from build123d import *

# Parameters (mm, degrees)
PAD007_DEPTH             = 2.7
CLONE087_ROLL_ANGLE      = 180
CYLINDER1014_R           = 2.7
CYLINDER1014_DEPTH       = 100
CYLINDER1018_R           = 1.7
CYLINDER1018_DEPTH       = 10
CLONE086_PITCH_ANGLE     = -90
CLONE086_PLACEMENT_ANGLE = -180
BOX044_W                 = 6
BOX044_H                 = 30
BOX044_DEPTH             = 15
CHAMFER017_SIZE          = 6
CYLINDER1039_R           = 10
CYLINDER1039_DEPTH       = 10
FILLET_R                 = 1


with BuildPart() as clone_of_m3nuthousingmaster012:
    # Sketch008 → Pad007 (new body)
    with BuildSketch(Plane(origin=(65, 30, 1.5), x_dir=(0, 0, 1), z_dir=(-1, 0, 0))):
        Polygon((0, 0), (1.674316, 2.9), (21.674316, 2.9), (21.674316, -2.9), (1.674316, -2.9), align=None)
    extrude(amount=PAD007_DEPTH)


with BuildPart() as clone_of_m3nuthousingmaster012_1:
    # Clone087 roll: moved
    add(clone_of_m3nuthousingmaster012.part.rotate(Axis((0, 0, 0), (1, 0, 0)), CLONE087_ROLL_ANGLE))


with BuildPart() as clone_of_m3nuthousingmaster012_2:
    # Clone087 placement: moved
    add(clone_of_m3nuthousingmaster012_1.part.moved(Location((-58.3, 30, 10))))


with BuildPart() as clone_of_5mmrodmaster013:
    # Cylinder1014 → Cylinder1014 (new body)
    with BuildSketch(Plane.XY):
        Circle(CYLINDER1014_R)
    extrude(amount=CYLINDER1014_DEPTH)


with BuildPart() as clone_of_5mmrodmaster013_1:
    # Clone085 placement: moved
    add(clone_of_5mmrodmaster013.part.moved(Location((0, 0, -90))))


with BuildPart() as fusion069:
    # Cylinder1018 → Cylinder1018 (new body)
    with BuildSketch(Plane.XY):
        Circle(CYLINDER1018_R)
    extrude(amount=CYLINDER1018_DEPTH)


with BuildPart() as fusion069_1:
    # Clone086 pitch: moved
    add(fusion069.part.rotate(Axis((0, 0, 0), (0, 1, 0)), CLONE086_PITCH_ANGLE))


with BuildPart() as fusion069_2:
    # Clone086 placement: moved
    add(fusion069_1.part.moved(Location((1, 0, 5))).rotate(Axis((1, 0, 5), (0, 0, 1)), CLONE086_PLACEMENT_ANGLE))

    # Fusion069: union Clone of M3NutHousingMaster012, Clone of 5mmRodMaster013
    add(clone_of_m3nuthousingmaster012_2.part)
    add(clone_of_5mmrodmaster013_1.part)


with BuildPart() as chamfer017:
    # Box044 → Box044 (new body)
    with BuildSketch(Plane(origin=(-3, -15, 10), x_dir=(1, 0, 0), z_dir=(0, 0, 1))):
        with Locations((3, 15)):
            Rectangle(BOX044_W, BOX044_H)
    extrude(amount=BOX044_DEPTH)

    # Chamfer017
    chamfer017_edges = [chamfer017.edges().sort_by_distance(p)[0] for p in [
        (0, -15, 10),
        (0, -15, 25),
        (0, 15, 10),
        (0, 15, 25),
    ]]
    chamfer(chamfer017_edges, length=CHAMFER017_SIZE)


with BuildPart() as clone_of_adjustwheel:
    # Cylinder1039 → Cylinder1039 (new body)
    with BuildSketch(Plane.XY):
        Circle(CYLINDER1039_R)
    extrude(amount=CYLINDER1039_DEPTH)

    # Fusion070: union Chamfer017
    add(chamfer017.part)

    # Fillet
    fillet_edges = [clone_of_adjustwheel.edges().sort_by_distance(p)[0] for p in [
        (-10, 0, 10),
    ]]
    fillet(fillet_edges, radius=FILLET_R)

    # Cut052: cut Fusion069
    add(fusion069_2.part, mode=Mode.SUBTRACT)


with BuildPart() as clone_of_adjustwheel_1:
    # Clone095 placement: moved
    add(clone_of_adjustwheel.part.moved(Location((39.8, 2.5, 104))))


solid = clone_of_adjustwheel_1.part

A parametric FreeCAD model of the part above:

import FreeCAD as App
import Part
import Sketcher
Q = App.Units.Quantity


def edges_at(feature, points):
    """Names of the edges that pass closest to the given points."""
    edges = feature.Shape.Edges
    near = lambda p: min(range(len(edges)), key=lambda i: edges[i].distToShape(Part.Vertex(*p))[0])
    return sorted({f"Edge{near(p) + 1}" for p in points})

doc = App.newDocument("Part")
body = doc.addObject("PartDesign::Body", "Body")

# Sketch on YZ plane
sketch1 = body.newObject("Sketcher::SketchObject", "Sketch")
sketch1.AttachmentSupport = (doc.getObject("YZ_Plane"), [""])
sketch1.MapMode = "FlatFace"
sketch1.AttachmentOffset = App.Placement(App.Vector(0, 0, 65), App.Rotation())
sketch1.addGeometry(Part.LineSegment(App.Vector(32.9, 3.174316, 0), App.Vector(30, 1.5, 0)), False)
sketch1.addGeometry(Part.LineSegment(App.Vector(30, 1.5, 0), App.Vector(27.1, 3.174316, 0)), False)
sketch1.addGeometry(Part.LineSegment(App.Vector(27.1, 3.174316, 0), App.Vector(27.1, 23.174316, 0)), False)
sketch1.addGeometry(Part.LineSegment(App.Vector(27.1, 23.174316, 0), App.Vector(32.9, 23.174316, 0)), False)
sketch1.addGeometry(Part.LineSegment(App.Vector(32.9, 23.174316, 0), App.Vector(32.9, 3.174316, 0)), False)
sketch1.addConstraint(Sketcher.Constraint("Coincident", 0, 2, 1, 1))
sketch1.addConstraint(Sketcher.Constraint("Coincident", 1, 2, 2, 1))
sketch1.addConstraint(Sketcher.Constraint("Coincident", 2, 2, 3, 1))
sketch1.addConstraint(Sketcher.Constraint("Coincident", 3, 2, 4, 1))
sketch1.addConstraint(Sketcher.Constraint("Coincident", 4, 2, 0, 1))
sketch1.addConstraint(Sketcher.Constraint("Vertical", 2))
sketch1.addConstraint(Sketcher.Constraint("Horizontal", 3))
sketch1.addConstraint(Sketcher.Constraint("Vertical", 4))
sketch1.addConstraint(Sketcher.Constraint("Horizontal", 1, 2, 4, 2))
sketch1.addConstraint(Sketcher.Constraint("Equal", 0, 1))
sketch1.addConstraint(Sketcher.Constraint("DistanceY", 2, 1, 2, 2, Q("20 mm")))
sketch1.addConstraint(Sketcher.Constraint("Angle", 0, Q("-149.999997 deg")))
sketch1.addConstraint(Sketcher.Constraint("DistanceX", 3, 1, 3, 2, Q("5.8 mm")))
sketch1.addConstraint(Sketcher.Constraint("DistanceX", -1, 1, 0, 2, Q("30 mm")))
sketch1.addConstraint(Sketcher.Constraint("DistanceY", -1, 1, 0, 2, Q("1.5 mm")))
pad1 = body.newObject("PartDesign::Pad", "Pad")
pad1.Profile = sketch1
pad1.Length = 2.7
pad1.Reversed = True
body2 = doc.addObject("PartDesign::Body", "Body001")
doc.recompute()

body.Placement = App.Placement(App.Vector(0, 0, 0), App.Rotation(App.Vector(1, 0, 0), 180))
boolean = body2.newObject("PartDesign::Boolean", "Boolean")
boolean.Type = "Fuse"
boolean.addObjects([body])
body3 = doc.addObject("PartDesign::Body", "Body002")
doc.recompute()

body2.Placement = App.Placement(App.Vector(-58.3, 30, 10), App.Rotation(App.Vector(0, 0, 1), 0))
boolean2 = body3.newObject("PartDesign::Boolean", "Boolean001")
boolean2.Type = "Fuse"
boolean2.addObjects([body2])
body4 = doc.addObject("PartDesign::Body", "Body003")

# Sketch on XY plane
sketch2 = body4.newObject("Sketcher::SketchObject", "Sketch001")
sketch2.AttachmentSupport = (doc.getObject("XY_Plane003"), [""])
sketch2.MapMode = "FlatFace"
sketch2.addGeometry(Part.Circle(App.Vector(0, 0, 0), App.Vector(0, 0, 1), 2.7), False)
sketch2.addConstraint(Sketcher.Constraint("Coincident", 0, 3, -1, 1))
sketch2.addConstraint(Sketcher.Constraint("Diameter", 0, Q("5.4 mm")))
pad2 = body4.newObject("PartDesign::Pad", "Pad001")
pad2.Profile = sketch2
pad2.Length = 100
body5 = doc.addObject("PartDesign::Body", "Body004")
doc.recompute()

body4.Placement = App.Placement(App.Vector(0, 0, -90), App.Rotation(App.Vector(0, 0, 1), 0))
boolean3 = body5.newObject("PartDesign::Boolean", "Boolean002")
boolean3.Type = "Fuse"
boolean3.addObjects([body4])
body6 = doc.addObject("PartDesign::Body", "Body005")

# Sketch on XY plane
sketch3 = body6.newObject("Sketcher::SketchObject", "Sketch002")
sketch3.AttachmentSupport = (doc.getObject("XY_Plane005"), [""])
sketch3.MapMode = "FlatFace"
sketch3.addGeometry(Part.Circle(App.Vector(0, 0, 0), App.Vector(0, 0, 1), 1.7), False)
sketch3.addConstraint(Sketcher.Constraint("Coincident", 0, 3, -1, 1))
sketch3.addConstraint(Sketcher.Constraint("Diameter", 0, Q("3.4 mm")))
pad3 = body6.newObject("PartDesign::Pad", "Pad002")
pad3.Profile = sketch3
pad3.Length = 10
body7 = doc.addObject("PartDesign::Body", "Body006")
doc.recompute()

body6.Placement = App.Placement(App.Vector(0, 0, 0), App.Rotation(App.Vector(0, 1, 0), 270))
boolean4 = body7.newObject("PartDesign::Boolean", "Boolean003")
boolean4.Type = "Fuse"
boolean4.addObjects([body6])
body8 = doc.addObject("PartDesign::Body", "Body007")
doc.recompute()

body7.Placement = App.Placement(App.Vector(1, 0, 5), App.Rotation(App.Vector(0, 0, 1), 180))
boolean5 = body8.newObject("PartDesign::Boolean", "Boolean004")
boolean5.Type = "Fuse"
boolean5.addObjects([body7])
doc.recompute()

boolean6 = body8.newObject("PartDesign::Boolean", "Boolean005")
boolean6.Type = "Fuse"
boolean6.addObjects([body3])
doc.recompute()

boolean7 = body8.newObject("PartDesign::Boolean", "Boolean006")
boolean7.Type = "Fuse"
boolean7.addObjects([body5])
body9 = doc.addObject("PartDesign::Body", "Body008")

# Sketch on XY plane
sketch4 = body9.newObject("Sketcher::SketchObject", "Sketch003")
sketch4.AttachmentSupport = (doc.getObject("XY_Plane008"), [""])
sketch4.MapMode = "FlatFace"
sketch4.AttachmentOffset = App.Placement(App.Vector(0, 0, 10), App.Rotation())
sketch4.addGeometry(Part.LineSegment(App.Vector(-3, 15, 0), App.Vector(-3, -15, 0)), False)
sketch4.addGeometry(Part.LineSegment(App.Vector(-3, -15, 0), App.Vector(3, -15, 0)), False)
sketch4.addGeometry(Part.LineSegment(App.Vector(3, -15, 0), App.Vector(3, 15, 0)), False)
sketch4.addGeometry(Part.LineSegment(App.Vector(3, 15, 0), App.Vector(-3, 15, 0)), False)
sketch4.addConstraint(Sketcher.Constraint("Coincident", 0, 2, 1, 1))
sketch4.addConstraint(Sketcher.Constraint("Coincident", 1, 2, 2, 1))
sketch4.addConstraint(Sketcher.Constraint("Coincident", 2, 2, 3, 1))
sketch4.addConstraint(Sketcher.Constraint("Coincident", 3, 2, 0, 1))
sketch4.addConstraint(Sketcher.Constraint("Vertical", 0))
sketch4.addConstraint(Sketcher.Constraint("Horizontal", 1))
sketch4.addConstraint(Sketcher.Constraint("Vertical", 2))
sketch4.addConstraint(Sketcher.Constraint("Horizontal", 3))
sketch4.addConstraint(Sketcher.Constraint("Symmetric", 0, 2, 2, 2, -1, 1))
sketch4.addConstraint(Sketcher.Constraint("DistanceX", 1, 1, 1, 2, Q("6 mm")))
sketch4.addConstraint(Sketcher.Constraint("DistanceY", 0, 2, 0, 1, Q("30 mm")))
pad4 = body9.newObject("PartDesign::Pad", "Pad003")
pad4.Profile = sketch4
pad4.Length = 15
doc.recompute()

chamfer = body9.newObject("PartDesign::Chamfer", "Chamfer")
chamfer.Base = (pad4, edges_at(pad4, [
    (0, -15, 10),
    (0, -15, 25),
    (0, 15, 10),
    (0, 15, 25),
]))
chamfer.Size = 6
body10 = doc.addObject("PartDesign::Body", "Body009")

# Sketch on XY plane
sketch5 = body10.newObject("Sketcher::SketchObject", "Sketch004")
sketch5.AttachmentSupport = (doc.getObject("XY_Plane009"), [""])
sketch5.MapMode = "FlatFace"
sketch5.addGeometry(Part.Circle(App.Vector(0, 0, 0), App.Vector(0, 0, 1), 10), False)
sketch5.addConstraint(Sketcher.Constraint("Coincident", 0, 3, -1, 1))
sketch5.addConstraint(Sketcher.Constraint("Diameter", 0, Q("20 mm")))
pad5 = body10.newObject("PartDesign::Pad", "Pad004")
pad5.Profile = sketch5
pad5.Length = 10
doc.recompute()

boolean8 = body10.newObject("PartDesign::Boolean", "Boolean007")
boolean8.Type = "Fuse"
boolean8.addObjects([body9])
doc.recompute()

fillet = body10.newObject("PartDesign::Fillet", "Fillet")
fillet.Base = (boolean8, edges_at(boolean8, [(-10, 0, 10)]))
fillet.Radius = 1
doc.recompute()

boolean9 = body10.newObject("PartDesign::Boolean", "Boolean008")
boolean9.Type = "Cut"
boolean9.addObjects([body8])
body11 = doc.addObject("PartDesign::Body", "Body010")
doc.recompute()

body10.Placement = App.Placement(App.Vector(39.8, 2.5, 104), App.Rotation(App.Vector(0, 0, 1), 0))
boolean10 = body11.newObject("PartDesign::Boolean", "Boolean009")
boolean10.Type = "Fuse"
boolean10.addObjects([body10])

doc.recompute()
